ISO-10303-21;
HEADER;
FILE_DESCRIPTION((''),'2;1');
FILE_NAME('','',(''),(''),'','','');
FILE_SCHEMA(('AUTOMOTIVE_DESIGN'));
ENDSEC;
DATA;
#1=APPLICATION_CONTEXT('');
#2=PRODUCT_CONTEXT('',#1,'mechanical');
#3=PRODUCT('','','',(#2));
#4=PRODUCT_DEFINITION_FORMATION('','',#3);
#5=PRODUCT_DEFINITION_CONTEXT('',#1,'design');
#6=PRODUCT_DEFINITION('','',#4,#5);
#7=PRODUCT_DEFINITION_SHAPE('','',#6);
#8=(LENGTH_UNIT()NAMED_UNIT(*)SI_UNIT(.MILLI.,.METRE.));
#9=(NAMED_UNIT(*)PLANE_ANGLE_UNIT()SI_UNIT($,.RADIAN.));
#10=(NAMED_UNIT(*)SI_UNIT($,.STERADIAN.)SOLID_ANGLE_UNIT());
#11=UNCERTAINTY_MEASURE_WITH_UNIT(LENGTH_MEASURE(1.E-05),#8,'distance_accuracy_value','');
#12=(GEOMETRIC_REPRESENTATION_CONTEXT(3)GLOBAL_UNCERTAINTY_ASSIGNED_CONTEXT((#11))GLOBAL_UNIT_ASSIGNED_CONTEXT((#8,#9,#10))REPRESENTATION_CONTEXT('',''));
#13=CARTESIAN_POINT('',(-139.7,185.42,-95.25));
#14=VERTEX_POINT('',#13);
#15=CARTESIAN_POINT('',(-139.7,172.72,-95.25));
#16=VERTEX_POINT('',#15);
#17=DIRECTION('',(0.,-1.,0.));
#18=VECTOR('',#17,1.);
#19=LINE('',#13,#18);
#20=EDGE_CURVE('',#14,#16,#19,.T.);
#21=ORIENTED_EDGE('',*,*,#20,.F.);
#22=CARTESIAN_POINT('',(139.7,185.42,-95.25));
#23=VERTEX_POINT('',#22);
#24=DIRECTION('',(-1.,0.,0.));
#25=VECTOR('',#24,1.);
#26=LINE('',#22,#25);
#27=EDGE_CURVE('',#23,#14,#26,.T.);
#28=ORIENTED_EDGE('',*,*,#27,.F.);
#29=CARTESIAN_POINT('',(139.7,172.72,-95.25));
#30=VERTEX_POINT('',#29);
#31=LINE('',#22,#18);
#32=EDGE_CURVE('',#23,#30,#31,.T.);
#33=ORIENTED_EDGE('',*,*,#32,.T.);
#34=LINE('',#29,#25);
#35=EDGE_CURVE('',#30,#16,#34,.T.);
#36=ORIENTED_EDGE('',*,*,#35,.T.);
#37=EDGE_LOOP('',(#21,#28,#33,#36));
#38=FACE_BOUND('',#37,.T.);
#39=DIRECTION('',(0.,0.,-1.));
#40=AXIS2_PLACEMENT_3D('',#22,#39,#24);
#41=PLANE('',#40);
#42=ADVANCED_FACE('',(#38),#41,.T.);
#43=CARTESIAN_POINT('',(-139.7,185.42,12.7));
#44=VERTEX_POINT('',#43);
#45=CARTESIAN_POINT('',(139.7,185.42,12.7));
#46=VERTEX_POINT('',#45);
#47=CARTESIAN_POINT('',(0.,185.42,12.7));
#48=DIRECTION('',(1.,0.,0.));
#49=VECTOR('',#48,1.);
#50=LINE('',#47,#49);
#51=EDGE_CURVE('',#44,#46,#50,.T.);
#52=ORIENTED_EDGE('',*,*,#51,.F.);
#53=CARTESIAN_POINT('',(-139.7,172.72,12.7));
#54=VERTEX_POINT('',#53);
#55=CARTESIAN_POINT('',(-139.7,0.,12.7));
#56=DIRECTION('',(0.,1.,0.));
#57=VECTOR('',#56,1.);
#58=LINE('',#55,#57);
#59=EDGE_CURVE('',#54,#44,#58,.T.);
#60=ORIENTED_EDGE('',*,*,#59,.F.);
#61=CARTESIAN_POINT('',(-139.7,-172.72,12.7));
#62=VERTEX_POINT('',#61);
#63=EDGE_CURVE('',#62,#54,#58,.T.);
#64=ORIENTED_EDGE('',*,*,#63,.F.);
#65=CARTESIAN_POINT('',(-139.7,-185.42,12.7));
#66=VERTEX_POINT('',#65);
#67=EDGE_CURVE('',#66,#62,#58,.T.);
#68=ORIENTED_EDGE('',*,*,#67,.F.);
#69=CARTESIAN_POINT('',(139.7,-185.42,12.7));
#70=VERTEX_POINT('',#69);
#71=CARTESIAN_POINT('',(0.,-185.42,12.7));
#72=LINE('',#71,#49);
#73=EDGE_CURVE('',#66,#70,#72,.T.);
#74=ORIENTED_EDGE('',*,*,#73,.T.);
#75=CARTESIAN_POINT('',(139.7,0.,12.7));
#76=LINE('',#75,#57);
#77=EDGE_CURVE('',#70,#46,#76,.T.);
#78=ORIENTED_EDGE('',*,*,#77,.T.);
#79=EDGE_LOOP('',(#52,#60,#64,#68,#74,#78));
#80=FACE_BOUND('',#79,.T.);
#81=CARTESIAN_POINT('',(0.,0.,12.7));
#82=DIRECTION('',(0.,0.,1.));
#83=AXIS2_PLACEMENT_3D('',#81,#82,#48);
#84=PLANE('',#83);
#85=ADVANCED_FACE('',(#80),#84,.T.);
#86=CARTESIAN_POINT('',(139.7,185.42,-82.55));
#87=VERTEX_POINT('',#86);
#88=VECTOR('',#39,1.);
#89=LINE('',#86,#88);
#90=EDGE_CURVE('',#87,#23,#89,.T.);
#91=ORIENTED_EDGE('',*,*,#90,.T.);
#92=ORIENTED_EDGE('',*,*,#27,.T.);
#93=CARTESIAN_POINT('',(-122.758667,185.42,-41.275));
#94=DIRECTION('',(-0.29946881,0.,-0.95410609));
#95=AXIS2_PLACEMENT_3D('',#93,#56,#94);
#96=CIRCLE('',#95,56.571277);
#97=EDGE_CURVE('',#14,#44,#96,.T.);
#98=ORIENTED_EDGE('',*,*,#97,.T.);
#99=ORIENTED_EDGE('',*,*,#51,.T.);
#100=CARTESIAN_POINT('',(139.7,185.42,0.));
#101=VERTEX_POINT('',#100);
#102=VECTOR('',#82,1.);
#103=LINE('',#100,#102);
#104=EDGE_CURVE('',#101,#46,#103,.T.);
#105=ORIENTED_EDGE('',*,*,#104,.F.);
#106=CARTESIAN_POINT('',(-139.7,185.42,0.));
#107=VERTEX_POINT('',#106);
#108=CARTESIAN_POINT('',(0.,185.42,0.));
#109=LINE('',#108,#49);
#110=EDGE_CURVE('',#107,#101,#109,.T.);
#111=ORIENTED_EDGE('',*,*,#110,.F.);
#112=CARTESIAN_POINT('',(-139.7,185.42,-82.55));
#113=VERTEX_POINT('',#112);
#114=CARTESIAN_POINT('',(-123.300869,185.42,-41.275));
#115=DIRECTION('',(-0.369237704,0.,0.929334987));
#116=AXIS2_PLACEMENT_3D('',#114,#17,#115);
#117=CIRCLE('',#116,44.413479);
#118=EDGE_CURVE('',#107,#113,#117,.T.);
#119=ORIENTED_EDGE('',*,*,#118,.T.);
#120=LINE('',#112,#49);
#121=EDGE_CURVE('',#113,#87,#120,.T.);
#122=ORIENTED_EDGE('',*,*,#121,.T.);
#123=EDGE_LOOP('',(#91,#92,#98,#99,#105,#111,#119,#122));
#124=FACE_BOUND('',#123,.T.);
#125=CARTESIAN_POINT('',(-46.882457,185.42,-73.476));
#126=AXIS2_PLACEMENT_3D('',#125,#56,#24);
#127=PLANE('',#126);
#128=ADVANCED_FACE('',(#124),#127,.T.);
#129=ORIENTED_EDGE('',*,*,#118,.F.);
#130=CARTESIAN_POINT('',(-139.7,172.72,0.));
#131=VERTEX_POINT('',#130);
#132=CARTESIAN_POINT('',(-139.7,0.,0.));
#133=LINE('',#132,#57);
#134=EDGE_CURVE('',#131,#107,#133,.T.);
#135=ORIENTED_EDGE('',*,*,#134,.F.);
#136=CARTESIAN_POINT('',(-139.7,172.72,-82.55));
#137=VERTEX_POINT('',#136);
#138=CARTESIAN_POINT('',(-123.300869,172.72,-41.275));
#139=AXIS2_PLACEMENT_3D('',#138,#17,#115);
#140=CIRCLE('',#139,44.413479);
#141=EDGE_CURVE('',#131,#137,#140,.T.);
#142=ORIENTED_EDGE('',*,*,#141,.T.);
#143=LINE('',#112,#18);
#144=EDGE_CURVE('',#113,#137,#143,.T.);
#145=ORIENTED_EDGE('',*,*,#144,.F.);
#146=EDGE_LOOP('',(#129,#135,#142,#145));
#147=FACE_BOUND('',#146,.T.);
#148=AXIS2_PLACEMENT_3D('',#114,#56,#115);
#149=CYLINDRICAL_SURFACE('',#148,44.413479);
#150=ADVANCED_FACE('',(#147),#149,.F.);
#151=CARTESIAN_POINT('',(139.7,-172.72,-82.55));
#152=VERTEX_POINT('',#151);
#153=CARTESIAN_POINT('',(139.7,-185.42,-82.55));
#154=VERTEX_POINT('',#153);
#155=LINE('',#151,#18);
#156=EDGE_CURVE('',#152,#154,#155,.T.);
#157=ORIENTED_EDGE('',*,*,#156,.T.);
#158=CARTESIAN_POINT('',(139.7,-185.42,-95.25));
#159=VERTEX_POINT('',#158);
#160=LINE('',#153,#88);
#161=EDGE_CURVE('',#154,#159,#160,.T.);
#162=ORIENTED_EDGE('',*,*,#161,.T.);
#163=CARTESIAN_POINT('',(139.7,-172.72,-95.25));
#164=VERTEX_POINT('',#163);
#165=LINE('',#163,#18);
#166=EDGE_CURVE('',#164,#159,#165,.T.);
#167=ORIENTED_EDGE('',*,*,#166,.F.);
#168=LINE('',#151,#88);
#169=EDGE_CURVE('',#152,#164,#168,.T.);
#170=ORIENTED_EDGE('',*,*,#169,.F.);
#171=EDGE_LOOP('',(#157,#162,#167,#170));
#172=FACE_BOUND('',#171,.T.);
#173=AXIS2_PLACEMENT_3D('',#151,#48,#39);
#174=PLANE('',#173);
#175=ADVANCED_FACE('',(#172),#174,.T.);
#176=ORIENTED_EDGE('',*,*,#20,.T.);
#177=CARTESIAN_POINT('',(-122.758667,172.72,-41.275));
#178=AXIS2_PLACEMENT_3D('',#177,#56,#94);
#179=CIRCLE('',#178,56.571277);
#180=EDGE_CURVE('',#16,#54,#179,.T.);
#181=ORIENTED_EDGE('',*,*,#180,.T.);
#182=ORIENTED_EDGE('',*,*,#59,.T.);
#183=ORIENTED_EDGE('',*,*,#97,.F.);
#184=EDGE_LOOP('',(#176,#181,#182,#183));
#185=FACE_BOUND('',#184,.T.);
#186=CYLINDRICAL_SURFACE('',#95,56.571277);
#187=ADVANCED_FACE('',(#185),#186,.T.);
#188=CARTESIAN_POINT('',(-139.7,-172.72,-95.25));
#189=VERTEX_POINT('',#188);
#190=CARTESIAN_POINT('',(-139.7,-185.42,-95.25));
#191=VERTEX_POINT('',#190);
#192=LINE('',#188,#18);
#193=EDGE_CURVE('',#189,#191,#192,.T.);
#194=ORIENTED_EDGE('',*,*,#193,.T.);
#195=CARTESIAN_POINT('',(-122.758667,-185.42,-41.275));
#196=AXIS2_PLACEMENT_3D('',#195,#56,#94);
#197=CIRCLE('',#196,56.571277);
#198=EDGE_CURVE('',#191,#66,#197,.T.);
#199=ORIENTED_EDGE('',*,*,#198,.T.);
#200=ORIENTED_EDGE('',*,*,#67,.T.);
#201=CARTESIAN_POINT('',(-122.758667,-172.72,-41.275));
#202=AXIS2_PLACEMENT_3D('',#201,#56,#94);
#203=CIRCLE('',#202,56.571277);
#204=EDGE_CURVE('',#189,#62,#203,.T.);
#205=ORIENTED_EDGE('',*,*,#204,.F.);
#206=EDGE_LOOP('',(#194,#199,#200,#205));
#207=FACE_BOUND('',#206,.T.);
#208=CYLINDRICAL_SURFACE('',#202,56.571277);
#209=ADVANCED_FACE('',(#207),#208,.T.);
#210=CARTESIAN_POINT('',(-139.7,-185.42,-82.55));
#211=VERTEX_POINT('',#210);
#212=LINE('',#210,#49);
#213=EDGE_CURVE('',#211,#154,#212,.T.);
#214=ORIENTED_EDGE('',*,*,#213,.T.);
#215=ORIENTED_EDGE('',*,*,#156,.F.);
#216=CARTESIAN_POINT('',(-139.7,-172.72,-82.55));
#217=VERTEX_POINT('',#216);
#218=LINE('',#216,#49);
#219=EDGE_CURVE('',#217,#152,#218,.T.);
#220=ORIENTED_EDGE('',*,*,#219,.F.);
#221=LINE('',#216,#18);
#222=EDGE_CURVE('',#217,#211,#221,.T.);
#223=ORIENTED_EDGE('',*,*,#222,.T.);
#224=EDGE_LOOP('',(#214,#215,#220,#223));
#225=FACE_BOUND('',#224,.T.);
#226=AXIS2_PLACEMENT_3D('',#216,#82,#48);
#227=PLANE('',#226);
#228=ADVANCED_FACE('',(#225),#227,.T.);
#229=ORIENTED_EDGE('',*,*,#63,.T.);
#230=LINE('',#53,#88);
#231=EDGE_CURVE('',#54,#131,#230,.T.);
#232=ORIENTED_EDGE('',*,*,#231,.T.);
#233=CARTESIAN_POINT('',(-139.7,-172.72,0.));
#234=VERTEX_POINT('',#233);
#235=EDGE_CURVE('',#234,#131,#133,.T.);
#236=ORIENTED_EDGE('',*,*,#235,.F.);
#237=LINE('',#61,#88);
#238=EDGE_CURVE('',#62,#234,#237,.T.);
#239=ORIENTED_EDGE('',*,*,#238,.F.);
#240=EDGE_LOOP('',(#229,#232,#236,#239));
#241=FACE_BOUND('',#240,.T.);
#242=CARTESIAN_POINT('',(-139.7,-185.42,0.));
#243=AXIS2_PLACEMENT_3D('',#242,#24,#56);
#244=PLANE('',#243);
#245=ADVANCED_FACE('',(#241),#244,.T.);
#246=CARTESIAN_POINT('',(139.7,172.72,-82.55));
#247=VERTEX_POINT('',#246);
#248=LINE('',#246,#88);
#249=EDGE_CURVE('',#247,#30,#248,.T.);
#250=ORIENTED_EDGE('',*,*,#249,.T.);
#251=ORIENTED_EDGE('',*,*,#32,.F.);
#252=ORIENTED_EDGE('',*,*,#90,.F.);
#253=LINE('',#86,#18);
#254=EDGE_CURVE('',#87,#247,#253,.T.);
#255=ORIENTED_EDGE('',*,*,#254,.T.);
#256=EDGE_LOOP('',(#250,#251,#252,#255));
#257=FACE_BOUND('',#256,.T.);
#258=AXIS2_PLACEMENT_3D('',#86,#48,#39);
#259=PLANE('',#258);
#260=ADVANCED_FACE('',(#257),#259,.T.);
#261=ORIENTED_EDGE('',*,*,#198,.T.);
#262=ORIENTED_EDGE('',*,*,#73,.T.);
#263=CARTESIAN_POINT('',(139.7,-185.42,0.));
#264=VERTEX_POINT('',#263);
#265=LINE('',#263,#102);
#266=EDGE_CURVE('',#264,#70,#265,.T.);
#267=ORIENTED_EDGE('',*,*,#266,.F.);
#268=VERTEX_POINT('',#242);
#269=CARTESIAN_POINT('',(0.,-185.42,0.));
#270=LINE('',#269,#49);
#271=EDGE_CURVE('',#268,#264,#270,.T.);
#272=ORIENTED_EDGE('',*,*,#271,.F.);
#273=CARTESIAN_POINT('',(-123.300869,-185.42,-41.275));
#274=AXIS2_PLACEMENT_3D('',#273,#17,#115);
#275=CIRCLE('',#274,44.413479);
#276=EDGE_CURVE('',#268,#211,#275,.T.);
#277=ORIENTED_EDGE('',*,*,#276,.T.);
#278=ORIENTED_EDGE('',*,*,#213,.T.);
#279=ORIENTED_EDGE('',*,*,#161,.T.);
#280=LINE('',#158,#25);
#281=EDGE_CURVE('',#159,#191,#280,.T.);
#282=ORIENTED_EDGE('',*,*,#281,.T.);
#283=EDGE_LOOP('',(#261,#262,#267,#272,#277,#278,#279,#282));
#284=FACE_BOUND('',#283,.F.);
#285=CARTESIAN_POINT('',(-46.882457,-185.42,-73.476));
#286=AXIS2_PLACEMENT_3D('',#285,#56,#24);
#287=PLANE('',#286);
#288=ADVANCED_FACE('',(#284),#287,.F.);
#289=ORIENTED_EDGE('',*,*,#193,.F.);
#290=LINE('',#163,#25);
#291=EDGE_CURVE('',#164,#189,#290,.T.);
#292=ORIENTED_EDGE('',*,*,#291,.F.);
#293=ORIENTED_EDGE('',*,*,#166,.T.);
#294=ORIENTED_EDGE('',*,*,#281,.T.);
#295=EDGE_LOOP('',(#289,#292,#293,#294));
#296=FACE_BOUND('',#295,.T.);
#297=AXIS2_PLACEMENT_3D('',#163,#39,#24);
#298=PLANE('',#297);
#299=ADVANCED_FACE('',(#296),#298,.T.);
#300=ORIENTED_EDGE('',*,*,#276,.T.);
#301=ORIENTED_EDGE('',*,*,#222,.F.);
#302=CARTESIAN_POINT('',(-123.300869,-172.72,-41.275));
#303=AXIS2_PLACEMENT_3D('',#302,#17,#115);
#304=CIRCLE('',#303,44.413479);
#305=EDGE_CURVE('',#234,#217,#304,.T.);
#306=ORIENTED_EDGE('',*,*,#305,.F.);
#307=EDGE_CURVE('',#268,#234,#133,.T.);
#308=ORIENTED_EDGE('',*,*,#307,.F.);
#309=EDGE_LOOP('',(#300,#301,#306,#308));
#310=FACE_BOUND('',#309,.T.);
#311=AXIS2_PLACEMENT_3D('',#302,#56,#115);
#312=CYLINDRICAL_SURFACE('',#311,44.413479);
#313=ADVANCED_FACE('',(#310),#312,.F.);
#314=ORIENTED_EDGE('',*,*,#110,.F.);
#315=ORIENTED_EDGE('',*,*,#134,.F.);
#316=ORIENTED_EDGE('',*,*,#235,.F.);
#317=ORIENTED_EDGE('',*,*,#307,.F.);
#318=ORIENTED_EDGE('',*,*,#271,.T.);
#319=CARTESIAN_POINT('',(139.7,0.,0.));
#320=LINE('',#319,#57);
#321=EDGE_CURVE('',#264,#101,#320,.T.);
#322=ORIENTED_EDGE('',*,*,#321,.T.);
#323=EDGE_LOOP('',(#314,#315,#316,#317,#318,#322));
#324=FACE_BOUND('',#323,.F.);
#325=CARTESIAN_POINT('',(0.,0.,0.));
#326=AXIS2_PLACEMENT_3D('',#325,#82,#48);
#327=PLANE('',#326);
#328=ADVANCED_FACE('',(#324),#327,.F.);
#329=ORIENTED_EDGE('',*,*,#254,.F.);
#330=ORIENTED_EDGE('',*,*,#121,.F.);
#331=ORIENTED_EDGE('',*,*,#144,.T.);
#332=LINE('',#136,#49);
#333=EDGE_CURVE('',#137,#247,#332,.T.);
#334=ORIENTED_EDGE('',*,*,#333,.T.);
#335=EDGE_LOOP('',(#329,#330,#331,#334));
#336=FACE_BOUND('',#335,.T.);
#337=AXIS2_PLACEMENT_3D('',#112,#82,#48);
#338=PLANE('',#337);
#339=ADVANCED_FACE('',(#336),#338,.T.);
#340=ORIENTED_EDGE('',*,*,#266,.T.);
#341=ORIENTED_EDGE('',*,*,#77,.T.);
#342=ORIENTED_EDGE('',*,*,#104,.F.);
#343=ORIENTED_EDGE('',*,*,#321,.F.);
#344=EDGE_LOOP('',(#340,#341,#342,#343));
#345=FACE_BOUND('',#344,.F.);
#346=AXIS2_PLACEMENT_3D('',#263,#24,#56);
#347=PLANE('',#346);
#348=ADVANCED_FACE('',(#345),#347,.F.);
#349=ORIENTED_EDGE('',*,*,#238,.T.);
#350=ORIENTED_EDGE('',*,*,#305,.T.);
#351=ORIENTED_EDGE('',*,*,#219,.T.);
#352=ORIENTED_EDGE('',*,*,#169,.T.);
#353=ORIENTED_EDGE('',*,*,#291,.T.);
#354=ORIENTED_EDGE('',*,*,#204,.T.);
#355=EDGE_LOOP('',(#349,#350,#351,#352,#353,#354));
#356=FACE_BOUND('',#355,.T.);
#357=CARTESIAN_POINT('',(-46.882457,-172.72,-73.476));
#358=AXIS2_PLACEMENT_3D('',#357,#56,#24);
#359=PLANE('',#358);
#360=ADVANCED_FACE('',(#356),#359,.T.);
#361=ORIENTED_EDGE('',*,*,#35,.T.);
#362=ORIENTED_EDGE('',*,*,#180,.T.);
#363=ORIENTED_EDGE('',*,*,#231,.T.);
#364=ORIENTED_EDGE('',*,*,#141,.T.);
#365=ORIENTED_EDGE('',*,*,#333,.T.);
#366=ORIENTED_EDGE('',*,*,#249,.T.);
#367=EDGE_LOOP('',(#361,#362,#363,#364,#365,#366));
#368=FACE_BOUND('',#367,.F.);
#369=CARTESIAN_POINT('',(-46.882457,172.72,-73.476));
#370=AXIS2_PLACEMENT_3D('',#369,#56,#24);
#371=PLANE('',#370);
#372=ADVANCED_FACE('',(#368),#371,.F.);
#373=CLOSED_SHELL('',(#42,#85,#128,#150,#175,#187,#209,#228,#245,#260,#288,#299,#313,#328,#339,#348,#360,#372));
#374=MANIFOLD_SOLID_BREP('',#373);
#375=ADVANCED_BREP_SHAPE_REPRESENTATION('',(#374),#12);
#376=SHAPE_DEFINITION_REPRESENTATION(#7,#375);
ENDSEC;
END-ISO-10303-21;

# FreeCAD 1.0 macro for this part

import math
import FreeCAD as App
import Part
import Sketcher
from FreeCAD import Vector
Q = App.Units.Quantity

doc = App.newDocument("Part")
body = doc.addObject("PartDesign::Body", "Body")

# Sketch on XY plane
sketch1 = doc.addObject("Sketcher::SketchObject", "Sketch")
body.addObject(sketch1)
sketch1.AttachmentSupport = (doc.XY_Plane, [""])
sketch1.MapMode = "FlatFace"
sketch1.addGeometry(Part.LineSegment(Vector(-140, 185, 0), Vector(-140, -185, 0)), False)
sketch1.addGeometry(Part.LineSegment(Vector(-140, -185, 0), Vector(140, -185, 0)), False)
sketch1.addGeometry(Part.LineSegment(Vector(140, -185, 0), Vector(140, 185, 0)), False)
sketch1.addGeometry(Part.LineSegment(Vector(140, 185, 0), Vector(-140, 185, 0)), False)
sketch1.addConstraint(Sketcher.Constraint("Coincident", 0, 2, 1, 1))
sketch1.addConstraint(Sketcher.Constraint("Coincident", 1, 2, 2, 1))
sketch1.addConstraint(Sketcher.Constraint("Coincident", 2, 2, 3, 1))
sketch1.addConstraint(Sketcher.Constraint("Coincident", 3, 2, 0, 1))
sketch1.addConstraint(Sketcher.Constraint("Vertical", 0))
sketch1.addConstraint(Sketcher.Constraint("Horizontal", 1))
sketch1.addConstraint(Sketcher.Constraint("Vertical", 2))
sketch1.addConstraint(Sketcher.Constraint("Horizontal", 3))
sketch1.addConstraint(Sketcher.Constraint("Symmetric", 0, 2, 2, 2, -1, 1))
sketch1.addConstraint(Sketcher.Constraint("DistanceX", 1, 1, 1, 2, Q("11 in")))
sketch1.addConstraint(Sketcher.Constraint("DistanceY", 0, 2, 0, 1, Q("14.6 in")))
pad1 = doc.addObject("PartDesign::Pad", "Pad")
body.addObject(pad1)
pad1.Profile = sketch1
pad1.Length = Q("0.5 in")

# Sketch on XZ plane
sketch2 = doc.addObject("Sketcher::SketchObject", "Sketch001")
body.addObject(sketch2)
sketch2.AttachmentSupport = (doc.XZ_Plane, [""])
sketch2.MapMode = "FlatFace"
sketch2.AttachmentOffset = App.Placement(Vector(0, 0, -7.3 * 25.4), App.Rotation())
sketch2.addGeometry(Part.LineSegment(Vector(140, -83, 0), Vector(140, -95, 0)), False)
sketch2.addGeometry(Part.LineSegment(Vector(140, -95, 0), Vector(-140, -95, 0)), False)
sketch2.addGeometry(Part.ArcOfCircle(Part.Circle(Vector(-123, -41, 0), Vector(0, 0, 1), 57), math.radians(107), math.radians(253)), False)
sketch2.addGeometry(Part.LineSegment(Vector(-140, 13, 0), Vector(-140, 0, 0)), False)
sketch2.addGeometry(Part.ArcOfCircle(Part.Circle(Vector(-123, -41, 0), Vector(0, 0, 1), 44), math.radians(112), math.radians(248)), False)
sketch2.addGeometry(Part.LineSegment(Vector(-140, -83, 0), Vector(140, -83, 0)), False)
sketch2.addConstraint(Sketcher.Constraint("Coincident", 0, 2, 1, 1))
sketch2.addConstraint(Sketcher.Constraint("Coincident", 1, 2, 2, 2))
sketch2.addConstraint(Sketcher.Constraint("Coincident", 2, 1, 3, 1))
sketch2.addConstraint(Sketcher.Constraint("Coincident", 3, 2, 4, 1))
sketch2.addConstraint(Sketcher.Constraint("Coincident", 4, 2, 5, 1))
sketch2.addConstraint(Sketcher.Constraint("Coincident", 5, 2, 0, 1))
sketch2.addConstraint(Sketcher.Constraint("Vertical", 0))
sketch2.addConstraint(Sketcher.Constraint("Horizontal", 1))
sketch2.addConstraint(Sketcher.Constraint("Vertical", 3))
sketch2.addConstraint(Sketcher.Constraint("Horizontal", 5))
sketch2.addConstraint(Sketcher.Constraint("PointOnObject", 3, 2, -1))
sketch2.addConstraint(Sketcher.Constraint("Horizontal", 2, 3, 4, 3))
sketch2.addConstraint(Sketcher.Constraint("Vertical", 1, 2, 2, 1))
sketch2.addConstraint(Sketcher.Constraint("Vertical", 3, 2, 4, 2))
sketch2.addConstraint(Sketcher.Constraint("DistanceX", 1, 2, 1, 1, Q("11 in")))
sketch2.addConstraint(Sketcher.Constraint("DistanceY", 0, 2, 0, 1, Q("0.5 in")))
sketch2.addConstraint(Sketcher.Constraint("DistanceX", -1, 1, 0, 2, Q("5.5 in")))
sketch2.addConstraint(Sketcher.Constraint("DistanceY", 0, 2, -1, 1, Q("3.75 in")))
sketch2.addConstraint(Sketcher.Constraint("Radius", 4, Q("44.413479 mm")))
sketch2.addConstraint(Sketcher.Constraint("Radius", 2, Q("56.571277 mm")))
pad2 = doc.addObject("PartDesign::Pad", "Pad001")
body.addObject(pad2)
pad2.Profile = sketch2
pad2.Length = Q("0.5 in")

# Sketch on XZ plane
sketch3 = doc.addObject("Sketcher::SketchObject", "Sketch002")
body.addObject(sketch3)
sketch3.AttachmentSupport = (doc.XZ_Plane, [""])
sketch3.MapMode = "FlatFace"
sketch3.AttachmentOffset = App.Placement(Vector(0, 0, 6.8 * 25.4), App.Rotation())
sketch3.addGeometry(Part.LineSegment(Vector(140, -83, 0), Vector(140, -95, 0)), False)
sketch3.addGeometry(Part.LineSegment(Vector(140, -95, 0), Vector(-140, -95, 0)), False)
sketch3.addGeometry(Part.ArcOfCircle(Part.Circle(Vector(-123, -41, 0), Vector(0, 0, 1), 57), math.radians(107), math.radians(253)), False)
sketch3.addGeometry(Part.LineSegment(Vector(-140, 13, 0), Vector(-140, 0, 0)), False)
sketch3.addGeometry(Part.ArcOfCircle(Part.Circle(Vector(-123, -41, 0), Vector(0, 0, 1), 44), math.radians(112), math.radians(248)), False)
sketch3.addGeometry(Part.LineSegment(Vector(-140, -83, 0), Vector(140, -83, 0)), False)
sketch3.addConstraint(Sketcher.Constraint("Coincident", 0, 2, 1, 1))
sketch3.addConstraint(Sketcher.Constraint("Coincident", 1, 2, 2, 2))
sketch3.addConstraint(Sketcher.Constraint("Coincident", 2, 1, 3, 1))
sketch3.addConstraint(Sketcher.Constraint("Coincident", 3, 2, 4, 1))
sketch3.addConstraint(Sketcher.Constraint("Coincident", 4, 2, 5, 1))
sketch3.addConstraint(Sketcher.Constraint("Coincident", 5, 2, 0, 1))
sketch3.addConstraint(Sketcher.Constraint("Vertical", 0))
sketch3.addConstraint(Sketcher.Constraint("Horizontal", 1))
sketch3.addConstraint(Sketcher.Constraint("Vertical", 3))
sketch3.addConstraint(Sketcher.Constraint("Horizontal", 5))
sketch3.addConstraint(Sketcher.Constraint("PointOnObject", 3, 2, -1))
sketch3.addConstraint(Sketcher.Constraint("Horizontal", 2, 3, 4, 3))
sketch3.addConstraint(Sketcher.Constraint("Vertical", 1, 2, 2, 1))
sketch3.addConstraint(Sketcher.Constraint("Vertical", 3, 2, 4, 2))
sketch3.addConstraint(Sketcher.Constraint("DistanceX", 1, 2, 1, 1, Q("11 in")))
sketch3.addConstraint(Sketcher.Constraint("DistanceY", 0, 2, 0, 1, Q("0.5 in")))
sketch3.addConstraint(Sketcher.Constraint("DistanceX", -1, 1, 0, 2, Q("5.5 in")))
sketch3.addConstraint(Sketcher.Constraint("DistanceY", 0, 2, -1, 1, Q("3.75 in")))
sketch3.addConstraint(Sketcher.Constraint("Radius", 4, Q("44.413479 mm")))
sketch3.addConstraint(Sketcher.Constraint("Radius", 2, Q("56.571277 mm")))
pad3 = doc.addObject("PartDesign::Pad", "Pad002")
body.addObject(pad3)
pad3.Profile = sketch3
pad3.Length = Q("0.5 in")

doc.recompute()
